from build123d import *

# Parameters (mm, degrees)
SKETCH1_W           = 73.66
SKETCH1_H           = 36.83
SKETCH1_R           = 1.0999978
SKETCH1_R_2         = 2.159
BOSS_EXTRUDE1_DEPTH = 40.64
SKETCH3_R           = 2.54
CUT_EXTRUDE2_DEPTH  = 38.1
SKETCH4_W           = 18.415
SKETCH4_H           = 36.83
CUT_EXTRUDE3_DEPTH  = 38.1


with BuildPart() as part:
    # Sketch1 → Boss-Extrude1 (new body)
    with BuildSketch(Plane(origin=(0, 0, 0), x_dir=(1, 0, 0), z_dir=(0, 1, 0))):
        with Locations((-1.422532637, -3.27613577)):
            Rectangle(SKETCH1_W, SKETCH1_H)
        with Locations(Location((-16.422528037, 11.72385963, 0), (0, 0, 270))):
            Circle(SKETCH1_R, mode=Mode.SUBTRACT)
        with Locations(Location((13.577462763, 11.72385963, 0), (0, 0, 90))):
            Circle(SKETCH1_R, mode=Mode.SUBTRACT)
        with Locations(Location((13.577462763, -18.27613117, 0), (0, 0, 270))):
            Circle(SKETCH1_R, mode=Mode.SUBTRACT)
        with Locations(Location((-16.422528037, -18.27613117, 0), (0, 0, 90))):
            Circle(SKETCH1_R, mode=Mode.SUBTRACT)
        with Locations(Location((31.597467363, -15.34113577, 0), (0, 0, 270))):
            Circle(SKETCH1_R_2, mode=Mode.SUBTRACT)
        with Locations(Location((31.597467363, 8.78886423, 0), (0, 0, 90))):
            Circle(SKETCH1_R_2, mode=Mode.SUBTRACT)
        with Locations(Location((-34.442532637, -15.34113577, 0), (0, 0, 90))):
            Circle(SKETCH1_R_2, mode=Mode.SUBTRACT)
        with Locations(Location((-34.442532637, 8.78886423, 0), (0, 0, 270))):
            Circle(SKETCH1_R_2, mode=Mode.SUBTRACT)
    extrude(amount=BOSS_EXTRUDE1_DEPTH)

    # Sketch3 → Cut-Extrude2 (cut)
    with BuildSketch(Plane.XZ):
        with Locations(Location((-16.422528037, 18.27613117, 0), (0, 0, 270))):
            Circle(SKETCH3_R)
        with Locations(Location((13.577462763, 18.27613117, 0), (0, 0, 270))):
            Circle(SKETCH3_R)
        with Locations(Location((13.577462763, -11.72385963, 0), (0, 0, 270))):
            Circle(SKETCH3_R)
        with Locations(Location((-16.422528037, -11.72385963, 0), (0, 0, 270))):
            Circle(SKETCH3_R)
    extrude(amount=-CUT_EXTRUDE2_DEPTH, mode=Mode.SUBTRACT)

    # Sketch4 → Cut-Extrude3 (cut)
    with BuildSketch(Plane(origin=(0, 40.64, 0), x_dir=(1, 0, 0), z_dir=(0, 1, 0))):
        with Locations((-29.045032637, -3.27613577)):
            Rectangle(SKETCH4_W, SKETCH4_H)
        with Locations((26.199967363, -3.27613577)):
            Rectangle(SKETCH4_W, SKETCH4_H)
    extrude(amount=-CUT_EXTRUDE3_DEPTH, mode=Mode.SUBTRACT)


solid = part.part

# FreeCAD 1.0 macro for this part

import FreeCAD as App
import Part
import Sketcher
from FreeCAD import Vector
Q = App.Units.Quantity


def add_polygon(sketch, points):
    """Adds a closed chain of lines whose ends are joined by coincident constraints."""
    first, n = sketch.GeometryCount, len(points)
    for a, b in zip(points, points[1:] + points[:1]):
        sketch.addGeometry(Part.LineSegment(App.Vector(*a, 0), App.Vector(*b, 0)), False)
    for i in range(n):
        sketch.addConstraint(Sketcher.Constraint("Coincident", first + i, 2, first + (i + 1) % n, 1))

doc = App.newDocument("Part")
body = doc.addObject("PartDesign::Body", "Body")

# Sketch on XZ plane
sketch1 = doc.addObject("Sketcher::SketchObject", "Sketch")
body.addObject(sketch1)
sketch1.AttachmentSupport = (doc.XZ_Plane, [""])
sketch1.MapMode = "FlatFace"
add_polygon(sketch1, [(-38.3, -15.1), (-38.3, 21.7), (35.4, 21.7), (35.4, -15.1)])  # lines 0-3
sketch1.addGeometry(Part.Circle(Vector(-34.4, 15.3, 0), Vector(0, 0, 1), 2.2), False)  # 4
sketch1.addGeometry(Part.Circle(Vector(-16.4, 18.3, 0), Vector(0, 0, 1), 1.1), False)  # 5
sketch1.addGeometry(Part.Circle(Vector(13.6, 18.3, 0), Vector(0, 0, 1), 1.1), False)  # 6
sketch1.addGeometry(Part.Circle(Vector(31.6, 15.3, 0), Vector(0, 0, 1), 2.2), False)  # 7
sketch1.addGeometry(Part.Circle(Vector(-34.4, -8.8, 0), Vector(0, 0, 1), 2.2), False)  # 8
sketch1.addGeometry(Part.Circle(Vector(-16.4, -11.7, 0), Vector(0, 0, 1), 1.1), False)  # 9
sketch1.addGeometry(Part.Circle(Vector(13.6, -11.7, 0), Vector(0, 0, 1), 1.1), False)  # 10
sketch1.addGeometry(Part.Circle(Vector(31.6, -8.8, 0), Vector(0, 0, 1), 2.2), False)  # 11
sketch1.addConstraint([
    Sketcher.Constraint("Vertical", 0),
    Sketcher.Constraint("Horizontal", 1),
    Sketcher.Constraint("Vertical", 2),
    Sketcher.Constraint("Horizontal", 3),
    Sketcher.Constraint("Equal", 5, 6),
    Sketcher.Constraint("Equal", 4, 7),
    Sketcher.Constraint("Equal", 7, 8),
    Sketcher.Constraint("Equal", 6, 9),
    Sketcher.Constraint("Equal", 9, 10),
    Sketcher.Constraint("Equal", 8, 11),
    Sketcher.Constraint("Horizontal", 5, 3, 6, 3),
    Sketcher.Constraint("Horizontal", 4, 3, 7, 3),
    Sketcher.Constraint("Horizontal", 9, 3, 10, 3),
    Sketcher.Constraint("Horizontal", 8, 3, 11, 3),
    Sketcher.Constraint("Vertical", 4, 3, 8, 3),
    Sketcher.Constraint("Vertical", 5, 3, 9, 3),
    Sketcher.Constraint("Vertical", 6, 3, 10, 3),
    Sketcher.Constraint("Vertical", 7, 3, 11, 3),
    Sketcher.Constraint("Diameter", 4, Q("0.17 in")),
    Sketcher.Constraint("DistanceX", 1, 1, 1, 2, Q("2.9 in")),
    Sketcher.Constraint("DistanceY", 0, 1, 0, 2, Q("1.45 in")),
    Sketcher.Constraint("DistanceX", 4, 3, 7, 3, Q("2.6 in")),
    Sketcher.Constraint("DistanceY", 8, 3, 0, 2, Q("1.2 in")),
    Sketcher.Constraint("DistanceY", 2, 2, 7, 3, Q("1.2 in")),
    Sketcher.Constraint("DistanceX", 0, 2, 4, 3, Q("0.15 in")),
    Sketcher.Constraint("Diameter", 5, Q("2.199996 mm")),
    Sketcher.Constraint("DistanceX", 5, 3, -1, 1, Q("16.422528 mm")),
    Sketcher.Constraint("DistanceY", -1, 1, 5, 3, Q("18.276131 mm")),
    Sketcher.Constraint("DistanceY", 9, 3, -1, 1, Q("11.72386 mm")),
    Sketcher.Constraint("DistanceX", 5, 3, 6, 3, Q("29.999991 mm")),
    Sketcher.Constraint("DistanceX", 4, 3, -1, 1, Q("34.442533 mm")),
    Sketcher.Constraint("DistanceY", -1, 1, 4, 3, Q("15.341136 mm")),
])
pad1 = doc.addObject("PartDesign::Pad", "Pad")
body.addObject(pad1)
pad1.Profile = sketch1
pad1.Length = Q("1.6 in")
pad1.Reversed = True

# Sketch on XZ plane
sketch2 = doc.addObject("Sketcher::SketchObject", "Sketch001")
body.addObject(sketch2)
sketch2.AttachmentSupport = (doc.XZ_Plane, [""])
sketch2.MapMode = "FlatFace"
sketch2.addGeometry([
    Part.Circle(Vector(-16.4, 18.3, 0), Vector(0, 0, 1), 2.5),
    Part.Circle(Vector(13.6, 18.3, 0), Vector(0, 0, 1), 2.5),
    Part.Circle(Vector(13.6, -11.7, 0), Vector(0, 0, 1), 2.5),
    Part.Circle(Vector(-16.4, -11.7, 0), Vector(0, 0, 1), 2.5),
], False)
sketch2.addConstraint([
    Sketcher.Constraint("Equal", 0, 1),
    Sketcher.Constraint("Equal", 1, 2),
    Sketcher.Constraint("Equal", 2, 3),
    Sketcher.Constraint("Horizontal", 0, 3, 1, 3),
    Sketcher.Constraint("Horizontal", 2, 3, 3, 3),
    Sketcher.Constraint("Vertical", 1, 3, 2, 3),
    Sketcher.Constraint("Vertical", 0, 3, 3, 3),
    Sketcher.Constraint("Diameter", 0, Q("0.2 in")),
    Sketcher.Constraint("DistanceX", 0, 3, -1, 1, Q("16.422528 mm")),
    Sketcher.Constraint("DistanceY", -1, 1, 0, 3, Q("18.276131 mm")),
    Sketcher.Constraint("DistanceY", 2, 3, -1, 1, Q("11.72386 mm")),
    Sketcher.Constraint("DistanceX", 0, 3, 1, 3, Q("29.999991 mm")),
])
pocket1 = doc.addObject("PartDesign::Pocket", "Pocket")
body.addObject(pocket1)
pocket1.Profile = sketch2
pocket1.Length = Q("1.5 in")

# Sketch on XZ plane
sketch3 = doc.addObject("Sketcher::SketchObject", "Sketch002")
body.addObject(sketch3)
sketch3.AttachmentSupport = (doc.XZ_Plane, [""])
sketch3.MapMode = "FlatFace"
sketch3.AttachmentOffset = App.Placement(Vector(0, 0, -1.6 * 25.4), App.Rotation())
add_polygon(sketch3, [(-38, -15), (-38, 22), (-20, 22), (-20, -15)])  # lines 0-3
add_polygon(sketch3, [(17, -15), (17, 22), (35, 22), (35, -15)])  # lines 4-7
sketch3.addConstraint([
    Sketcher.Constraint("Vertical", 0),
    Sketcher.Constraint("Horizontal", 1),
    Sketcher.Constraint("Vertical", 2),
    Sketcher.Constraint("Horizontal", 3),
    Sketcher.Constraint("Vertical", 4),
    Sketcher.Constraint("Horizontal", 5),
    Sketcher.Constraint("Vertical", 6),
    Sketcher.Constraint("Horizontal", 7),
    Sketcher.Constraint("Horizontal", 1, 2, 4, 2),
    Sketcher.Constraint("Horizontal", 3, 2, 6, 2),
    Sketcher.Constraint("Equal", 3, 5),
    Sketcher.Constraint("DistanceY", 0, 1, 0, 2, Q("1.45 in")),
    Sketcher.Constraint("DistanceX", 0, 2, 5, 2, Q("2.9 in")),
    Sketcher.Constraint("DistanceX", 1, 1, 1, 2, Q("0.725 in")),
    Sketcher.Constraint("DistanceX", 0, 2, -1, 1, Q("38.252533 mm")),
    Sketcher.Constraint("DistanceY", -1, 1, 0, 2, Q("21.691136 mm")),
])
pocket2 = doc.addObject("PartDesign::Pocket", "Pocket001")
body.addObject(pocket2)
pocket2.Profile = sketch3
pocket2.Length = Q("1.5 in")
pocket2.Reversed = True

doc.recompute()
